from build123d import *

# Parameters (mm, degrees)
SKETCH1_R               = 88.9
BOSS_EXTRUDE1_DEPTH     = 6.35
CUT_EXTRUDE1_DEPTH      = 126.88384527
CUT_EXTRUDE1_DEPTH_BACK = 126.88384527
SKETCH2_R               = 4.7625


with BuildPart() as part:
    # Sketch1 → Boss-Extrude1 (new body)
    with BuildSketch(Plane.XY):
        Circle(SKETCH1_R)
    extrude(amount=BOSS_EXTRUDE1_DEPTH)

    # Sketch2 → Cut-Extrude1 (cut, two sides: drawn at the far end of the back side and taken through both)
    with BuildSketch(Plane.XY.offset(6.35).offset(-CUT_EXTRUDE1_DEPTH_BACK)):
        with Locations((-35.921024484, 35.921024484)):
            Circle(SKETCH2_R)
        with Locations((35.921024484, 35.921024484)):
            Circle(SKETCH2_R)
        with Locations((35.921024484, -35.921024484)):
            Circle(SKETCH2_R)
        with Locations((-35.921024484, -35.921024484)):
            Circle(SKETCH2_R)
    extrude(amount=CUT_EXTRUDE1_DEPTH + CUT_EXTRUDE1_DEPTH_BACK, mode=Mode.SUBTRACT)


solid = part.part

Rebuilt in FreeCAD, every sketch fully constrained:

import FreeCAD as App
import Part
import Sketcher

V = App.Vector
Q = App.Units.Quantity

doc = App.newDocument("Part")
body = doc.addObject("PartDesign::Body", "Body")

sketch1 = body.newObject("Sketcher::SketchObject", "Sketch")
sketch1.AttachmentSupport = (doc.getObject("XY_Plane"), [""])
sketch1.MapMode = "FlatFace"
sketch1.addGeometry(Part.Circle(V(0, 0, 0), V(0, 0, 1), 89), False)
sketch1.addConstraint([
    Sketcher.Constraint("Coincident", 0, 3, -1, 1),
    Sketcher.Constraint("Diameter", 0, Q("7 in")),
])
pad1 = body.newObject("PartDesign::Pad", "Pad")
pad1.Profile = sketch1
pad1.Length = Q("0.25 in")

sketch2 = body.newObject("Sketcher::SketchObject", "Sketch001")
sketch2.AttachmentSupport = (doc.getObject("XY_Plane"), [""])
sketch2.MapMode = "FlatFace"
sketch2.AttachmentOffset = App.Placement(V(0, 0, 0.25 * 25.4), App.Rotation())
sketch2.addGeometry([
    Part.Circle(V(-35.9, 35.9, 0), V(0, 0, 1), 4.8),
    Part.Circle(V(35.9, 35.9, 0), V(0, 0, 1), 4.8),
    Part.Circle(V(35.9, -35.9, 0), V(0, 0, 1), 4.8),
    Part.Circle(V(-35.9, -35.9, 0), V(0, 0, 1), 4.8),
], False)
sketch2.addConstraint([
    Sketcher.Constraint("Equal", 0, 1),
    Sketcher.Constraint("Equal", 1, 2),
    Sketcher.Constraint("Equal", 2, 3),
    Sketcher.Constraint("Symmetric", 0, 3, 2, 3, -1, 1),
    Sketcher.Constraint("Symmetric", 1, 3, 3, 3, -1, 1),
    Sketcher.Constraint("Symmetric", 0, 3, 1, 3, -2),
    Sketcher.Constraint("Diameter", 0, Q("0.375 in")),
    Sketcher.Constraint("DistanceX", 0, 3, 1, 3, 71.842049),
    Sketcher.Constraint("DistanceY", 2, 3, 1, 3, 71.842049),
])
pocket1 = body.newObject("PartDesign::Pocket", "Pocket")
pocket1.Profile = sketch2
pocket1.Type = "ThroughAll"
pocket1.Midplane = True

doc.recompute()
